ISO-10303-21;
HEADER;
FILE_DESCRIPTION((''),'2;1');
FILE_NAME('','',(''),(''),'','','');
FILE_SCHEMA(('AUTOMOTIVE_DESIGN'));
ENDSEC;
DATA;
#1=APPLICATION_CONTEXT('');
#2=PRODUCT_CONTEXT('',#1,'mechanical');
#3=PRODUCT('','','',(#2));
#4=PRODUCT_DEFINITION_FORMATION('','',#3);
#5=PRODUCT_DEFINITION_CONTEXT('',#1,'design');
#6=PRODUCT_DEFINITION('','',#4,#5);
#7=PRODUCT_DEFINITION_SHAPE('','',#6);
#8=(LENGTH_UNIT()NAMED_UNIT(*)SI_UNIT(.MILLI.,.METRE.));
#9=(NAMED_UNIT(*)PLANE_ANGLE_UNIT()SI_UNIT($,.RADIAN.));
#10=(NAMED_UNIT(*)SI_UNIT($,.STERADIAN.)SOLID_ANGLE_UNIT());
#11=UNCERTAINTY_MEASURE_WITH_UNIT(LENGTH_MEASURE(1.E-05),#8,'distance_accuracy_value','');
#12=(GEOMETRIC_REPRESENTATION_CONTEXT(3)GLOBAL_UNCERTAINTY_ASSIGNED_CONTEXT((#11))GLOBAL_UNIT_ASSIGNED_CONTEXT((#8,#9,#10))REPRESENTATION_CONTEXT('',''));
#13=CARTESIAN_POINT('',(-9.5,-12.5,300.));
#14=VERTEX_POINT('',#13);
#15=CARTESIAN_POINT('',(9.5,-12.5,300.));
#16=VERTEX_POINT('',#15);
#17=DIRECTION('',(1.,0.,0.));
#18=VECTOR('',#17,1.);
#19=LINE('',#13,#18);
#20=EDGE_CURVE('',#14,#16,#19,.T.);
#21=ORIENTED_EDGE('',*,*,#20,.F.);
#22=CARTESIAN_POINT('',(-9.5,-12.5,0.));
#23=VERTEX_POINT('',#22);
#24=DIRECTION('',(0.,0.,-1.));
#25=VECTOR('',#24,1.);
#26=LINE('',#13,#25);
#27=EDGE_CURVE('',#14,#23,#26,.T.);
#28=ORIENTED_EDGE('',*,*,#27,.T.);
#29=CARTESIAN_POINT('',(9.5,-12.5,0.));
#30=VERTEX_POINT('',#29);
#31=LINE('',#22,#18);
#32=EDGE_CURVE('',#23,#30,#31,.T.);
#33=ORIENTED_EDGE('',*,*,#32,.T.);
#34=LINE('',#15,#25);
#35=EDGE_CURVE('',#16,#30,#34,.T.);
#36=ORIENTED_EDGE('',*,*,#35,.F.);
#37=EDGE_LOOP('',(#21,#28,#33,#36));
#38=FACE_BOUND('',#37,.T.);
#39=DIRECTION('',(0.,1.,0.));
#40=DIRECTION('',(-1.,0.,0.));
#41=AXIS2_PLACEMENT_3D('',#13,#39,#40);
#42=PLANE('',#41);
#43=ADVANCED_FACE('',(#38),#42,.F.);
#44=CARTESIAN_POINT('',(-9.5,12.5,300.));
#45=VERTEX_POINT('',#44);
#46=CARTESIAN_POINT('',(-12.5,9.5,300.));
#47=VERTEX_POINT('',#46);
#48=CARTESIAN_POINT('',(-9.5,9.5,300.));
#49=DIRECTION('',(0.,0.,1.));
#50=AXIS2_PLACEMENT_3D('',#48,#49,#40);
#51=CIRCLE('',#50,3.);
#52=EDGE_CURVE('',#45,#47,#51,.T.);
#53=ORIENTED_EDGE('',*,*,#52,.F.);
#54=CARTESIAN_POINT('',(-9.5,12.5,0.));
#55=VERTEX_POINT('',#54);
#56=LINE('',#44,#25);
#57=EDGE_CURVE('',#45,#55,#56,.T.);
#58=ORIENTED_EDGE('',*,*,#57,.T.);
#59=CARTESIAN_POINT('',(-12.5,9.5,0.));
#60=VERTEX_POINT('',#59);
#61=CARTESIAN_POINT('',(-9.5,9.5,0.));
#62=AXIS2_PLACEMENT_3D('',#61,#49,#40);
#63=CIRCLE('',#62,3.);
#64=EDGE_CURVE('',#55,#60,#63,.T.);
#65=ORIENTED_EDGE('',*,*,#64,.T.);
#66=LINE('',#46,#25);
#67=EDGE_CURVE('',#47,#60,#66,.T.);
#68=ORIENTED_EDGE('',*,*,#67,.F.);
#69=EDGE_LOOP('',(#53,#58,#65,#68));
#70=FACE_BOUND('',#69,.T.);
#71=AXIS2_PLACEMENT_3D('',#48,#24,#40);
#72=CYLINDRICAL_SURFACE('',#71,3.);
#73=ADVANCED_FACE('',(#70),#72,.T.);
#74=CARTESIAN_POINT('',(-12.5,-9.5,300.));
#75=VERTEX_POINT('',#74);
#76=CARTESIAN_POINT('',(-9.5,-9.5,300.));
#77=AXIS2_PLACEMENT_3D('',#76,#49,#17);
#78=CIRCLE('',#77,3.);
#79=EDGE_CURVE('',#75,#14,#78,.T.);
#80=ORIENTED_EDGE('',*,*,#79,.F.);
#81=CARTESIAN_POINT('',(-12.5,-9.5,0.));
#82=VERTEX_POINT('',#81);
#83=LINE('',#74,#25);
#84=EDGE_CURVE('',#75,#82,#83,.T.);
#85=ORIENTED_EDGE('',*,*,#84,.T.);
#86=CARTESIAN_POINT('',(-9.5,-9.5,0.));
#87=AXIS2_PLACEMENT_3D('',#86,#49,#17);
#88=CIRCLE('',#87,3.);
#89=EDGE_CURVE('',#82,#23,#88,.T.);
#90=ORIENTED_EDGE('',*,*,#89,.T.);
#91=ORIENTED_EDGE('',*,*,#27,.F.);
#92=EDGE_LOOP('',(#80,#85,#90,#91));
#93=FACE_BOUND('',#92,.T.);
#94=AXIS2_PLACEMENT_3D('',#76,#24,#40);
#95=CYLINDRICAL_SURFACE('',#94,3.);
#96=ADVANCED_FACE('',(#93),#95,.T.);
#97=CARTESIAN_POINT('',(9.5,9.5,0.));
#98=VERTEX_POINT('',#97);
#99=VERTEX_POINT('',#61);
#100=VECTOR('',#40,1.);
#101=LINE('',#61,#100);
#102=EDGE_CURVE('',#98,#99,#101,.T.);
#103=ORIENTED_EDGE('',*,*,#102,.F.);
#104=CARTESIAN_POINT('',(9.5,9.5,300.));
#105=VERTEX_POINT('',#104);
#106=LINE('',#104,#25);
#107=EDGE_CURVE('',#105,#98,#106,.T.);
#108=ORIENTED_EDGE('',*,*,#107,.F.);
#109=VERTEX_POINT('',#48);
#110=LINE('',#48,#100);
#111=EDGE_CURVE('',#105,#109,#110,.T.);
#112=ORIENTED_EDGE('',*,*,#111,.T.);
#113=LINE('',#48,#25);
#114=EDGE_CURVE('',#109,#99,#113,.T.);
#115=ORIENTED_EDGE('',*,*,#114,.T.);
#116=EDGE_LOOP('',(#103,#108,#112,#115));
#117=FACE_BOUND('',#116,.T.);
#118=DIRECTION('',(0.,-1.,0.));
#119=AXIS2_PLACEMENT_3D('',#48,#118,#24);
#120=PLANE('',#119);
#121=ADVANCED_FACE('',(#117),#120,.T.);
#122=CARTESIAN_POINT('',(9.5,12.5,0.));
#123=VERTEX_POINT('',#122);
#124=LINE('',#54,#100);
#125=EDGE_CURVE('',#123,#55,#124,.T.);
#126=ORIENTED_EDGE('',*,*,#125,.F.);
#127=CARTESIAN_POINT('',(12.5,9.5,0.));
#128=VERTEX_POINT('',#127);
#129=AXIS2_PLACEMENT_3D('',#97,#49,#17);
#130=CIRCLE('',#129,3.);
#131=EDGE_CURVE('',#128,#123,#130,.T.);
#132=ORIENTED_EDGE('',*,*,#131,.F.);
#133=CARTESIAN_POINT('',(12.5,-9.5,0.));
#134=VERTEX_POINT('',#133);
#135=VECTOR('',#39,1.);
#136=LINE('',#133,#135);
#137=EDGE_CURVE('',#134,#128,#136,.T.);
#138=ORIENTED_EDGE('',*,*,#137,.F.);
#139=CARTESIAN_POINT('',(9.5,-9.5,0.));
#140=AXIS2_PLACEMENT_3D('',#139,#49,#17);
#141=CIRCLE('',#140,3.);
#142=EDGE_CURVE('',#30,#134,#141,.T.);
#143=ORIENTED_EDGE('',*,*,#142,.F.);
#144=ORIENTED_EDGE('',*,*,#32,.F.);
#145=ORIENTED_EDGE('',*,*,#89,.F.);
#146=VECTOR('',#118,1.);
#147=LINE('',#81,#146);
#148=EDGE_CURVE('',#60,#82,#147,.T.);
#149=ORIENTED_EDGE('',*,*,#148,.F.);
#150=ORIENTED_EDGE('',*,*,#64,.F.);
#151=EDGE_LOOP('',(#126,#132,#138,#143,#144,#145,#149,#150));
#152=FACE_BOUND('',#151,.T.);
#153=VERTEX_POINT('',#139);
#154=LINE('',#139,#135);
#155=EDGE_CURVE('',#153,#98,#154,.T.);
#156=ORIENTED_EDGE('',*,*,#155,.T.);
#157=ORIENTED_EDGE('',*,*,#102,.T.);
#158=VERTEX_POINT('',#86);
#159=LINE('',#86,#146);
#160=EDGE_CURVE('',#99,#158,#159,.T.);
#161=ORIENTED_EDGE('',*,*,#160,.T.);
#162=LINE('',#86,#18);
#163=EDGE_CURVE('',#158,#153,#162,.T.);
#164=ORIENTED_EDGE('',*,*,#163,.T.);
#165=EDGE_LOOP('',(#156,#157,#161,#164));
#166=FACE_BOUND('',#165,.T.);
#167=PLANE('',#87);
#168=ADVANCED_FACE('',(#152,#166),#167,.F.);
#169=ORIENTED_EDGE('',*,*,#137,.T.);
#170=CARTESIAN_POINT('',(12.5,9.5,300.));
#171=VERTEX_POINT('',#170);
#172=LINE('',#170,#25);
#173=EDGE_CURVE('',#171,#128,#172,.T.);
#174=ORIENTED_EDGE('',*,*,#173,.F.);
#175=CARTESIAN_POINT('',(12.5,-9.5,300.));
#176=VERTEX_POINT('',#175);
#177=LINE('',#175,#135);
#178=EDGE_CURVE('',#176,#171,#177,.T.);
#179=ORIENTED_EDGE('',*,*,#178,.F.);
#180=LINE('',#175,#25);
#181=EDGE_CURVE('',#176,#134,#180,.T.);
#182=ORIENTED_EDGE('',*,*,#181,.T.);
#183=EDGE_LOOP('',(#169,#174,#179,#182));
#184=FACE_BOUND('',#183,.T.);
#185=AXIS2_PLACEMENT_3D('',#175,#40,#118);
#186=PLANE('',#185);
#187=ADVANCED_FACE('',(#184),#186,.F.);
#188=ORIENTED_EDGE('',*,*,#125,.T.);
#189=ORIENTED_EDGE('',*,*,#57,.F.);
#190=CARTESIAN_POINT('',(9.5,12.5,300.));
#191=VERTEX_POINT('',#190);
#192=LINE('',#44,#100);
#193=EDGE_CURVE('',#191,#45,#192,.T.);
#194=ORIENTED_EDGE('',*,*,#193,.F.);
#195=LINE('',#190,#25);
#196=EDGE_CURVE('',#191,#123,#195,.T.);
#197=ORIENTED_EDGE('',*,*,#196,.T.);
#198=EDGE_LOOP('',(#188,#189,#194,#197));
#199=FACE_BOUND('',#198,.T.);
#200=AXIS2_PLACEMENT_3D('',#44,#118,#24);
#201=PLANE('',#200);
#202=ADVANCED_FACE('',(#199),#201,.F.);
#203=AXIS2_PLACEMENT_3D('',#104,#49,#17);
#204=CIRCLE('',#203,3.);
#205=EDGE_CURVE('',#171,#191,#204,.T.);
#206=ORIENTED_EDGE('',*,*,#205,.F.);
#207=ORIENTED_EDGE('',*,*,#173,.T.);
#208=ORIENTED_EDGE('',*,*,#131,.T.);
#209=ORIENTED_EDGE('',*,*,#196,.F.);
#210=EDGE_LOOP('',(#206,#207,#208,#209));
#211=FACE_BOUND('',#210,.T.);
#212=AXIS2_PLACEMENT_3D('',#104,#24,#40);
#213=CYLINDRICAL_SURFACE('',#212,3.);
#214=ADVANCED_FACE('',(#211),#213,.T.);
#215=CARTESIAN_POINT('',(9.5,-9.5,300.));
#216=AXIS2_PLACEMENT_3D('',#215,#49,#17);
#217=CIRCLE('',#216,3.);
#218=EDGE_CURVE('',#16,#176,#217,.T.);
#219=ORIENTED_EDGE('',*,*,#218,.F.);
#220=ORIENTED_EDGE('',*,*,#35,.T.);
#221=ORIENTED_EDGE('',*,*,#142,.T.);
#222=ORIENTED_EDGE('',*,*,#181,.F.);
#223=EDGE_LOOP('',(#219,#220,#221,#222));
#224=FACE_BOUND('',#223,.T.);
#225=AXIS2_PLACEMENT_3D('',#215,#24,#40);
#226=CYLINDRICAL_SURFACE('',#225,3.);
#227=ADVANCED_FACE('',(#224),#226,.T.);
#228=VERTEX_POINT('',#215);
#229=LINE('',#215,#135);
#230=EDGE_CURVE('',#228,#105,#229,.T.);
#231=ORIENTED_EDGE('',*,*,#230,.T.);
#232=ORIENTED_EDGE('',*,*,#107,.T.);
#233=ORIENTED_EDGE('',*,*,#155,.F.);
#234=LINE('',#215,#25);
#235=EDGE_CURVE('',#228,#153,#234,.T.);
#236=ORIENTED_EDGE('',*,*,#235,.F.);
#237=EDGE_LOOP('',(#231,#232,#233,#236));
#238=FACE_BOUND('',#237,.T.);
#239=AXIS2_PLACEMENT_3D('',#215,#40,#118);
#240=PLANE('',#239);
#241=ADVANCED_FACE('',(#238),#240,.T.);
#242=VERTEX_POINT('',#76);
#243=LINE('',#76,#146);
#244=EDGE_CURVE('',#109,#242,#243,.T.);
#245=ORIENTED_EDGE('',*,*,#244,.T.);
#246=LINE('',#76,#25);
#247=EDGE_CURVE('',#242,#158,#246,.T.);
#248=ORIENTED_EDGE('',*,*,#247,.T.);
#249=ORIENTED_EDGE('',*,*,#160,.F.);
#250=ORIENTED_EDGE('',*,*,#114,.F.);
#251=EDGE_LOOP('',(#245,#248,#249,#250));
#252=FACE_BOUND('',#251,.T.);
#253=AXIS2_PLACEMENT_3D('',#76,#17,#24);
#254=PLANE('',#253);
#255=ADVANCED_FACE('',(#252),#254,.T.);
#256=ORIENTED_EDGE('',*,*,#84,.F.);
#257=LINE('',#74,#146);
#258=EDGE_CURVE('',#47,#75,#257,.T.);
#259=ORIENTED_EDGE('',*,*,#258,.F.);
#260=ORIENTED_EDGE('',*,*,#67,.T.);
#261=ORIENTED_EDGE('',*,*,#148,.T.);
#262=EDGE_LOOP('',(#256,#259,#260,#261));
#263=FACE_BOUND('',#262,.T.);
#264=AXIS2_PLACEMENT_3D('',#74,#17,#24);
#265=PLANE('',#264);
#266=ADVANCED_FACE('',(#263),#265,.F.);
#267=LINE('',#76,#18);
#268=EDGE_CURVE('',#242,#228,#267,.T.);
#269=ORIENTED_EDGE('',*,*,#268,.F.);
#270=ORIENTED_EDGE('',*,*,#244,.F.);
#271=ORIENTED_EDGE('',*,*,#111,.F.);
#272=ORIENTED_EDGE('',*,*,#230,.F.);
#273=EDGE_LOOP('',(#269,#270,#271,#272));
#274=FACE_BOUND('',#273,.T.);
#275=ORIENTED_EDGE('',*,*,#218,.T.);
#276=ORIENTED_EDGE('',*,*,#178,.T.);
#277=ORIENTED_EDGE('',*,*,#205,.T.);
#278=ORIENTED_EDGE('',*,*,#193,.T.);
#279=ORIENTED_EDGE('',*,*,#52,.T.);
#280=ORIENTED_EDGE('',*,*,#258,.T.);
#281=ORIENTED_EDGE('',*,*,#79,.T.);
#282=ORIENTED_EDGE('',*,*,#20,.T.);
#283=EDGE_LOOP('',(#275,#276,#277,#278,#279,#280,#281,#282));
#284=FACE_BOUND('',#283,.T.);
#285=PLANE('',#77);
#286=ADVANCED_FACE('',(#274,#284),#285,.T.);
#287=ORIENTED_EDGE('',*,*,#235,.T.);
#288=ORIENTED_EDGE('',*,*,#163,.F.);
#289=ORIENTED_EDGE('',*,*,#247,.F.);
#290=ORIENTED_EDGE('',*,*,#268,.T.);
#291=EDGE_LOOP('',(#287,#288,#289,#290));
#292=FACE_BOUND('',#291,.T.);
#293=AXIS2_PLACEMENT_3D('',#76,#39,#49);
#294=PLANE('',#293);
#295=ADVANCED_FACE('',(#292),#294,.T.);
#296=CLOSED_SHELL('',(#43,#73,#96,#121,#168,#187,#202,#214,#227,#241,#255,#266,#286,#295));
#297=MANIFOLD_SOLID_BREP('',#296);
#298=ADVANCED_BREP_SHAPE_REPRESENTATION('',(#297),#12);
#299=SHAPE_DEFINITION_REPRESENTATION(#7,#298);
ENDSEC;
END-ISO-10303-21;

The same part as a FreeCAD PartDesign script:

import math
import FreeCAD as App
import Part
import Sketcher

doc = App.newDocument("Part")
params = doc.addObject("Spreadsheet::Sheet", "Params")
for row, (alias, value) in enumerate([
    ("sketch1_radius", "3 mm"),
    ("sketch1_width", "19 mm"),
    ("pad1_length", "300 mm"),
], start=1):
    params.set(f"A{row}", alias)
    params.set(f"B{row}", "=" + value)
    params.setAlias(f"B{row}", alias)

body = doc.addObject("PartDesign::Body", "Body")

# Sketch on XY plane
sketch1 = body.newObject("Sketcher::SketchObject", "Sketch")
sketch1.AttachmentSupport = (doc.getObject("XY_Plane"), [""])
sketch1.MapMode = "FlatFace"
sketch1.addGeometry([
    Part.LineSegment(App.Vector(-9.5, -12.5, 0), App.Vector(9.5, -12.5, 0)),  # 0
    Part.ArcOfCircle(Part.Circle(App.Vector(9.5, -9.5, 0), App.Vector(0, 0, 1), 3), math.radians(-90), math.radians(0)),  # 1
    Part.LineSegment(App.Vector(12.5, -9.5, 0), App.Vector(12.5, 9.5, 0)),  # 2
    Part.ArcOfCircle(Part.Circle(App.Vector(9.5, 9.5, 0), App.Vector(0, 0, 1), 3), math.radians(0), math.radians(90)),  # 3
    Part.LineSegment(App.Vector(9.5, 12.5, 0), App.Vector(-9.5, 12.5, 0)),  # 4
    Part.ArcOfCircle(Part.Circle(App.Vector(-9.5, 9.5, 0), App.Vector(0, 0, 1), 3), math.radians(90), math.radians(180)),  # 5
    Part.LineSegment(App.Vector(-12.5, 9.5, 0), App.Vector(-12.5, -9.5, 0)),  # 6
    Part.ArcOfCircle(Part.Circle(App.Vector(-9.5, -9.5, 0), App.Vector(0, 0, 1), 3), math.radians(180), math.radians(270)),  # 7
    Part.LineSegment(App.Vector(9.5, -9.5, 0), App.Vector(-9.5, -9.5, 0)),  # 8
    Part.LineSegment(App.Vector(-9.5, -9.5, 0), App.Vector(-9.5, 9.5, 0)),  # 9
    Part.LineSegment(App.Vector(-9.5, 9.5, 0), App.Vector(9.5, 9.5, 0)),  # 10
    Part.LineSegment(App.Vector(9.5, 9.5, 0), App.Vector(9.5, -9.5, 0)),  # 11
], False)
sketch1.addConstraint([
    Sketcher.Constraint("Tangent", 0, 2, 1, 1),
    Sketcher.Constraint("Tangent", 1, 2, 2, 1),
    Sketcher.Constraint("Tangent", 2, 2, 3, 1),
    Sketcher.Constraint("Tangent", 3, 2, 4, 1),
    Sketcher.Constraint("Tangent", 4, 2, 5, 1),
    Sketcher.Constraint("Tangent", 5, 2, 6, 1),
    Sketcher.Constraint("Tangent", 6, 2, 7, 1),
    Sketcher.Constraint("Tangent", 7, 2, 0, 1),
    Sketcher.Constraint("Coincident", 8, 2, 9, 1),
    Sketcher.Constraint("Coincident", 9, 2, 10, 1),
    Sketcher.Constraint("Coincident", 10, 2, 11, 1),
    Sketcher.Constraint("Coincident", 11, 2, 8, 1),
    Sketcher.Constraint("Horizontal", 0),
    Sketcher.Constraint("Vertical", 2),
    Sketcher.Constraint("Horizontal", 4),
    Sketcher.Constraint("Vertical", 6),
    Sketcher.Constraint("Horizontal", 8),
    Sketcher.Constraint("Vertical", 9),
    Sketcher.Constraint("Horizontal", 10),
    Sketcher.Constraint("Vertical", 11),
    Sketcher.Constraint("Coincident", 8, 2, 7, 3),
    Sketcher.Constraint("Coincident", 9, 2, 5, 3),
    Sketcher.Constraint("Coincident", 10, 2, 3, 3),
    Sketcher.Constraint("Equal", 1, 3),
    Sketcher.Constraint("Symmetric", 1, 3, 5, 3, -1, 1),
    Sketcher.Constraint("Equal", 10, 2),
    Sketcher.Constraint("Radius", 1, 3.0),
    Sketcher.Constraint("DistanceX", 0, 1, 0, 2, 19.0),
])
sketch1.setExpression("Constraints[26]", "Params.sketch1_radius")
sketch1.setExpression("Constraints[27]", "Params.sketch1_width")
pad1 = body.newObject("PartDesign::Pad", "Pad")
pad1.Profile = sketch1
pad1.setExpression("Length", "Params.pad1_length")

doc.recompute()
